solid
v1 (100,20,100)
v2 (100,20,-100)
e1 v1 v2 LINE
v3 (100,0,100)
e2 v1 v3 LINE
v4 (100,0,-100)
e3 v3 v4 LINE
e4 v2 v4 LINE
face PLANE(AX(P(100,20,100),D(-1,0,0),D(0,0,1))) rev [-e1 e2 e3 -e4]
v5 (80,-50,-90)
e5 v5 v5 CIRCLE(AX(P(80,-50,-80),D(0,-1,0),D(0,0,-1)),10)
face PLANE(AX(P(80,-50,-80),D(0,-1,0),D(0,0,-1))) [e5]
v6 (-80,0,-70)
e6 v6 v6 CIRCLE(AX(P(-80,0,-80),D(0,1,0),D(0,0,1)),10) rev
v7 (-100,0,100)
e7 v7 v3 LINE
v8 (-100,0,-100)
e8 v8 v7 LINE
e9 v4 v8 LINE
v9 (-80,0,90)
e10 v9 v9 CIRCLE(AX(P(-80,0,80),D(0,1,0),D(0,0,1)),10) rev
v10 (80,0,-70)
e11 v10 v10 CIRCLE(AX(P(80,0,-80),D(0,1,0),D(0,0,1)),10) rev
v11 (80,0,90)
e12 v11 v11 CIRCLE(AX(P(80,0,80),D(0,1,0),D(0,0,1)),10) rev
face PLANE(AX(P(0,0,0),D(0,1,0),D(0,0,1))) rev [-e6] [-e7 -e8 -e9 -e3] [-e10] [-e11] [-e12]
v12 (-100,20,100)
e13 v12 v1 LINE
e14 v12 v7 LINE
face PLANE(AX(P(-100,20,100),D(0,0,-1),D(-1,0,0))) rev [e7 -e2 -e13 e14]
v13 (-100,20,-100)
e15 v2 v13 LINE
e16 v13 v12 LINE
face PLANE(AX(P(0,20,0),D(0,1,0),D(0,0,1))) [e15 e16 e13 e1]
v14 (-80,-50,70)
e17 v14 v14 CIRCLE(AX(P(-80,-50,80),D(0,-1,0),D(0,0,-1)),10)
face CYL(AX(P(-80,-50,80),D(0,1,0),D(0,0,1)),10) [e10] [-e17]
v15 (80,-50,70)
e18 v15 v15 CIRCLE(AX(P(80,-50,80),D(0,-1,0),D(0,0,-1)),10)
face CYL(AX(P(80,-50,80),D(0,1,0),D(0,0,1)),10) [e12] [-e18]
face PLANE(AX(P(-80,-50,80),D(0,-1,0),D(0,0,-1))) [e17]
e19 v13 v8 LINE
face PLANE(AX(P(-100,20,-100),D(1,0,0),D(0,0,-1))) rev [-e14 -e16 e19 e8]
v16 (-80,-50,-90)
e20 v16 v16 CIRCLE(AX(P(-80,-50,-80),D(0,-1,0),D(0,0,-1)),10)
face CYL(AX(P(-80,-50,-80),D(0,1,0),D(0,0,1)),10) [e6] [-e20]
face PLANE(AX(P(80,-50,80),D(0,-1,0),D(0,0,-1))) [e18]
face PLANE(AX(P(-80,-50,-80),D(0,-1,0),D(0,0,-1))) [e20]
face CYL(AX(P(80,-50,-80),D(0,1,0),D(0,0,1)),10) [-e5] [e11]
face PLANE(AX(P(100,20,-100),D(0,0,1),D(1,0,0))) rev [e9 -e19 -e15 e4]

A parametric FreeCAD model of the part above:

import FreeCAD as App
import Part
import Sketcher

doc = App.newDocument("Part")
body = doc.addObject("PartDesign::Body", "Body")

sketch1 = body.newObject("Sketcher::SketchObject", "Sketch")
sketch1.AttachmentSupport = (doc.getObject("XZ_Plane"), [""])
sketch1.MapMode = "FlatFace"
sketch1.addGeometry(Part.LineSegment(App.Vector(-100, -100, 0), App.Vector(-100, 100, 0)), False)
sketch1.addGeometry(Part.LineSegment(App.Vector(-100, 100, 0), App.Vector(100, 100, 0)), False)
sketch1.addGeometry(Part.LineSegment(App.Vector(100, 100, 0), App.Vector(100, -100, 0)), False)
sketch1.addGeometry(Part.LineSegment(App.Vector(100, -100, 0), App.Vector(-100, -100, 0)), False)
sketch1.addConstraint(Sketcher.Constraint("Coincident", 0, 2, 1, 1))
sketch1.addConstraint(Sketcher.Constraint("Coincident", 1, 2, 2, 1))
sketch1.addConstraint(Sketcher.Constraint("Coincident", 2, 2, 3, 1))
sketch1.addConstraint(Sketcher.Constraint("Coincident", 3, 2, 0, 1))
sketch1.addConstraint(Sketcher.Constraint("Vertical", 0))
sketch1.addConstraint(Sketcher.Constraint("Horizontal", 1))
sketch1.addConstraint(Sketcher.Constraint("Vertical", 2))
sketch1.addConstraint(Sketcher.Constraint("Horizontal", 3))
sketch1.addConstraint(Sketcher.Constraint("Symmetric", 0, 2, 2, 2, -1, 1))
sketch1.addConstraint(Sketcher.Constraint("Equal", 3, 0))
sketch1.addConstraint(Sketcher.Constraint("DistanceX", 1, 1, 1, 2, 200.0))
pad1 = body.newObject("PartDesign::Pad", "Pad")
pad1.Profile = sketch1
pad1.Length = 20
pad1.Reversed = True

sketch2 = body.newObject("Sketcher::SketchObject", "Sketch001")
sketch2.AttachmentSupport = (doc.getObject("XZ_Plane"), [""])
sketch2.MapMode = "FlatFace"
sketch2.addGeometry(Part.Circle(App.Vector(80, 80, 0), App.Vector(0, 0, 1), 10), False)
sketch2.addGeometry(Part.Circle(App.Vector(80, -80, 0), App.Vector(0, 0, 1), 10), False)
sketch2.addGeometry(Part.Circle(App.Vector(-80, -80, 0), App.Vector(0, 0, 1), 10), False)
sketch2.addGeometry(Part.Circle(App.Vector(-80, 80, 0), App.Vector(0, 0, 1), 10), False)
sketch2.addConstraint(Sketcher.Constraint("Equal", 0, 1))
sketch2.addConstraint(Sketcher.Constraint("Equal", 1, 2))
sketch2.addConstraint(Sketcher.Constraint("Equal", 2, 3))
sketch2.addConstraint(Sketcher.Constraint("Symmetric", 0, 3, 2, 3, -1, 1))
sketch2.addConstraint(Sketcher.Constraint("Symmetric", 1, 3, 3, 3, -1, 1))
sketch2.addConstraint(Sketcher.Constraint("Symmetric", 1, 3, 2, 3, -2))
sketch2.addConstraint(Sketcher.Constraint("Diameter", 0, 20.0))
sketch2.addConstraint(Sketcher.Constraint("DistanceX", -1, 1, 0, 3, 80.0))
sketch2.addConstraint(Sketcher.Constraint("DistanceY", -1, 1, 0, 3, 80.0))
pad2 = body.newObject("PartDesign::Pad", "Pad001")
pad2.Profile = sketch2
pad2.Length = 50

doc.recompute()
